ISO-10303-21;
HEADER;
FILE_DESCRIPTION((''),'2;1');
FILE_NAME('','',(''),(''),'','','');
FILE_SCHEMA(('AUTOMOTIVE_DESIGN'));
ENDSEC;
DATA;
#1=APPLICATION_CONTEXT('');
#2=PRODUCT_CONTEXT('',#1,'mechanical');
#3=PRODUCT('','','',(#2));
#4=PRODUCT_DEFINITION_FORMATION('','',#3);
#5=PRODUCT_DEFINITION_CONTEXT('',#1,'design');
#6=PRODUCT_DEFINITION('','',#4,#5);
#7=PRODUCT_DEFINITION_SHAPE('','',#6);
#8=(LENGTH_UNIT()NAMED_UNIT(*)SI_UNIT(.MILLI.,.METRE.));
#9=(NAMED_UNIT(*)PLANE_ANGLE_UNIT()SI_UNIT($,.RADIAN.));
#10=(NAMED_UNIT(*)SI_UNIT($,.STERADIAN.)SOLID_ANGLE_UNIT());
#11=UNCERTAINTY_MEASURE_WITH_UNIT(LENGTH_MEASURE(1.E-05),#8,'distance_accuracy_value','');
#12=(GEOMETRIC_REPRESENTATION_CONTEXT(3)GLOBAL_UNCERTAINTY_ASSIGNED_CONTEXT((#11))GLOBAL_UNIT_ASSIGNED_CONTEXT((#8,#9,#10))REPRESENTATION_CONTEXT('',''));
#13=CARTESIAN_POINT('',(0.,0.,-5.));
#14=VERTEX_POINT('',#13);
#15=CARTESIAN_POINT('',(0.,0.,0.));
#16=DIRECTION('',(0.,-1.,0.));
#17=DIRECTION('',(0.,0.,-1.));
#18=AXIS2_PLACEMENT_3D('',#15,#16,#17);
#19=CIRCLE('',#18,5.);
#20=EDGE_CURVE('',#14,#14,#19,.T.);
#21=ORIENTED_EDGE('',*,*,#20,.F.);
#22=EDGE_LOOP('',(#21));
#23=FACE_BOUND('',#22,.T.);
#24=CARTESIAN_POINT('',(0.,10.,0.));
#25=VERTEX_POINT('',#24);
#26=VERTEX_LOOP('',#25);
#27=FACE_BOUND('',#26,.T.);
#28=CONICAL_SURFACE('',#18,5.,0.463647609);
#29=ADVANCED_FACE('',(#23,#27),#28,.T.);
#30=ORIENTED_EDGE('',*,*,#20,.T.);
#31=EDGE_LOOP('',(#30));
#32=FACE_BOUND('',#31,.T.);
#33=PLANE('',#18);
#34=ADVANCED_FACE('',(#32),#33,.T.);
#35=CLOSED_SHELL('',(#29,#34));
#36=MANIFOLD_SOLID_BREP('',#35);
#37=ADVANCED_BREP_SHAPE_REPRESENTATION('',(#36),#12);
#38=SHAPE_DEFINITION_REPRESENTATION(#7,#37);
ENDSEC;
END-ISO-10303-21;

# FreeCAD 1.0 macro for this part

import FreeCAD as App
import Part
import Sketcher
from FreeCAD import Vector
Q = App.Units.Quantity


def add_polygon(sketch, points):
    """Adds a closed chain of lines whose ends are joined by coincident constraints."""
    first, n = sketch.GeometryCount, len(points)
    for a, b in zip(points, points[1:] + points[:1]):
        sketch.addGeometry(Part.LineSegment(App.Vector(*a, 0), App.Vector(*b, 0)), False)
    for i in range(n):
        sketch.addConstraint(Sketcher.Constraint("Coincident", first + i, 2, first + (i + 1) % n, 1))

doc = App.newDocument("Part")
body = doc.addObject("PartDesign::Body", "Body")

# Sketch on XY plane
sketch1 = body.newObject("Sketcher::SketchObject", "Sketch")
sketch1.AttachmentSupport = (doc.getObject("XY_Plane"), [""])
sketch1.MapMode = "FlatFace"
add_polygon(sketch1, [(0, 0), (5, 0), (0, 10)])  # lines 0-2
sketch1.addConstraint([
    Sketcher.Constraint("Horizontal", 0),
    Sketcher.Constraint("Vertical", 2),
    Sketcher.Constraint("Coincident", 2, 2, -1, 1),
    Sketcher.Constraint("DistanceX", 0, 1, 0, 2, Q("5 mm")),
    Sketcher.Constraint("DistanceY", 2, 2, 2, 1, Q("10 mm")),
])
revolution = body.newObject("PartDesign::Revolution", "Revolution")
revolution.Profile = sketch1
revolution.ReferenceAxis = (sketch1, ["V_Axis"])
revolution.Angle = 360

doc.recompute()
